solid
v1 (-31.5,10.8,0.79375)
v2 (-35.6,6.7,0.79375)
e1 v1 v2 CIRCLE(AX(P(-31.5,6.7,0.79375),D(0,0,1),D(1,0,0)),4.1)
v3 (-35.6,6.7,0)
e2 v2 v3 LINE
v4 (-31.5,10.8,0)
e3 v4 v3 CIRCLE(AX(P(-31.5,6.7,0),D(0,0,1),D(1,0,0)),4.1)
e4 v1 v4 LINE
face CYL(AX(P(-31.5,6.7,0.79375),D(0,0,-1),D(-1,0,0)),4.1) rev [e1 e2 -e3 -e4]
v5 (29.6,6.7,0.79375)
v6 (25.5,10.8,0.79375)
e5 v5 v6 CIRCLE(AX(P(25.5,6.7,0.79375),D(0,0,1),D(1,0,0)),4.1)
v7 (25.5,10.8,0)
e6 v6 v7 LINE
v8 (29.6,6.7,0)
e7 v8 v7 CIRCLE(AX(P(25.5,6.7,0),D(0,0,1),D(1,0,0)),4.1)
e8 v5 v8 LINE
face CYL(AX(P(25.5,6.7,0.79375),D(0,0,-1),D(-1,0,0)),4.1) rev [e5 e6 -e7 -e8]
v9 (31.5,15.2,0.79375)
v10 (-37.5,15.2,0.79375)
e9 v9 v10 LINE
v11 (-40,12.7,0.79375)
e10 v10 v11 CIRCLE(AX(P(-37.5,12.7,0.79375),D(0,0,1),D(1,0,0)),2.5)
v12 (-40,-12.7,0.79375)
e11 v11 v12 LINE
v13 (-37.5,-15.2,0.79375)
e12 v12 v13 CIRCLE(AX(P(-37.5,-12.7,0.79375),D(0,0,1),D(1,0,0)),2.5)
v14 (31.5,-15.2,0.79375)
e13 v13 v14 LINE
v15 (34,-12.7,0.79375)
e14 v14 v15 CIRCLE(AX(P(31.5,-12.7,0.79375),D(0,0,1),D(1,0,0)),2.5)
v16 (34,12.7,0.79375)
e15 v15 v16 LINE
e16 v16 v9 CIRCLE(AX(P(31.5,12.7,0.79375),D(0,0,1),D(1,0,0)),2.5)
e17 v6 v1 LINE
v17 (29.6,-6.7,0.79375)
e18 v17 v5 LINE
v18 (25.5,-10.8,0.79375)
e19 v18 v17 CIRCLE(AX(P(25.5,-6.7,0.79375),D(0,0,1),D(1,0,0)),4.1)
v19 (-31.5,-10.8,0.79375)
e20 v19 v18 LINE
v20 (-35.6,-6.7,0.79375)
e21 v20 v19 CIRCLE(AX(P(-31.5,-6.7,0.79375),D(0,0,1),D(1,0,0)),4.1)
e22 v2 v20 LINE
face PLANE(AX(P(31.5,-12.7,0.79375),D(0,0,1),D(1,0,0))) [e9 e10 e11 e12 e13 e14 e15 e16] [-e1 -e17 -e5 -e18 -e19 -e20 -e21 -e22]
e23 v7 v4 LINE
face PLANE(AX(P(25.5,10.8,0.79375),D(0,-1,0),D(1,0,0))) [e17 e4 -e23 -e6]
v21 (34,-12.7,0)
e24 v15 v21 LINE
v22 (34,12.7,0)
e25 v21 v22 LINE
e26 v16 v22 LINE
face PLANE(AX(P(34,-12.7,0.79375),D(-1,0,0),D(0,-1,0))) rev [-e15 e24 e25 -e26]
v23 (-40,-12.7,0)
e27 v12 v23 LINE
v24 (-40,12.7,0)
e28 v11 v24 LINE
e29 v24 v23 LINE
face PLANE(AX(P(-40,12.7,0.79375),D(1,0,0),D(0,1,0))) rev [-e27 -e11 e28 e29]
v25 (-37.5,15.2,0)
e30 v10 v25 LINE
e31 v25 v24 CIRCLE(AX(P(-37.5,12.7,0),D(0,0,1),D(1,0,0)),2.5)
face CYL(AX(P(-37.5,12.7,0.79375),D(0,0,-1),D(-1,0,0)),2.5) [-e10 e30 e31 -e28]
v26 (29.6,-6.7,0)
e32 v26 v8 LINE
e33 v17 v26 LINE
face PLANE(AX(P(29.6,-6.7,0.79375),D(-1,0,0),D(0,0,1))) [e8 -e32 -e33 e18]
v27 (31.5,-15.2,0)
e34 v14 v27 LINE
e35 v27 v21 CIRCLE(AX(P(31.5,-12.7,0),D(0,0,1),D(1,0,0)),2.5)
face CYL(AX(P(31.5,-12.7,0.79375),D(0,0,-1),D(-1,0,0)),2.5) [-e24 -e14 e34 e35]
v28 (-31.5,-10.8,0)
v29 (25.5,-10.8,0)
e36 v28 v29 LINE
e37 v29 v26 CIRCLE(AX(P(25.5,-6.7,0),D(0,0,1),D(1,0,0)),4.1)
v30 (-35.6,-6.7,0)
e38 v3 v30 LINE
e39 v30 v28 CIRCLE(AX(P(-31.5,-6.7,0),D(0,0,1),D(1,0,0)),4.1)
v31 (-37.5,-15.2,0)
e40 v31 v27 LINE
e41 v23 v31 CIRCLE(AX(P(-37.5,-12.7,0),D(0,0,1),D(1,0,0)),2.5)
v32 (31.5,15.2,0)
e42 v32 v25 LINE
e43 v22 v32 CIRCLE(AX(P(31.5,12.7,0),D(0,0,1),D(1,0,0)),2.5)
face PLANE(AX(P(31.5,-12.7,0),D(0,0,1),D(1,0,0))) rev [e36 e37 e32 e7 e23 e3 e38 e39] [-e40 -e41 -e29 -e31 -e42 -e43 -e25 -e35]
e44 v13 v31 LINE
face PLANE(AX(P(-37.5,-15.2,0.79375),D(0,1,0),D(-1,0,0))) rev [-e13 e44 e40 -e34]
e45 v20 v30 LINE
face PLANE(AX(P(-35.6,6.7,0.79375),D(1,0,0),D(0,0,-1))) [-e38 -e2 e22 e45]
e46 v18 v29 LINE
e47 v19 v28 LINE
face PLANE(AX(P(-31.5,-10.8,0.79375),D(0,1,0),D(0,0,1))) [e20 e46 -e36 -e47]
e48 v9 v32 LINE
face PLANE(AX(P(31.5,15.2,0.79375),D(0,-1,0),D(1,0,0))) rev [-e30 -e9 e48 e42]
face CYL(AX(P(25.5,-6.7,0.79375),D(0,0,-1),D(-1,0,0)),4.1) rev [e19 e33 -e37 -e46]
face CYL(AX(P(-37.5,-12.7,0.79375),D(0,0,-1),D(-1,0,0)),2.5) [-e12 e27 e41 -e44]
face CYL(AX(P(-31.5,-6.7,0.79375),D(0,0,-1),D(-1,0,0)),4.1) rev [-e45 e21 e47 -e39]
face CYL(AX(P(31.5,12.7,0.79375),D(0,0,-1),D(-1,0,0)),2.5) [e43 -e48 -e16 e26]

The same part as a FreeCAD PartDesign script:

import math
import FreeCAD as App
import Part
import Sketcher
from FreeCAD import Vector
Q = App.Units.Quantity

doc = App.newDocument("Part")
body = doc.addObject("PartDesign::Body", "Body")

# Sketch on XY plane
sketch1 = doc.addObject("Sketcher::SketchObject", "Sketch")
body.addObject(sketch1)
sketch1.AttachmentSupport = (doc.XY_Plane, [""])
sketch1.MapMode = "FlatFace"
sketch1.addGeometry(Part.LineSegment(Vector(34, -12.7, 0), Vector(34, 12.7, 0)), False)
sketch1.addGeometry(Part.ArcOfCircle(Part.Circle(Vector(31.5, 12.7, 0), Vector(0, 0, 1), 2.5), math.radians(0), math.radians(90)), False)
sketch1.addGeometry(Part.LineSegment(Vector(31.5, 15.2, 0), Vector(-37.5, 15.2, 0)), False)
sketch1.addGeometry(Part.ArcOfCircle(Part.Circle(Vector(-37.5, 12.7, 0), Vector(0, 0, 1), 2.5), math.radians(90), math.radians(180)), False)
sketch1.addGeometry(Part.LineSegment(Vector(-40, 12.7, 0), Vector(-40, -12.7, 0)), False)
sketch1.addGeometry(Part.ArcOfCircle(Part.Circle(Vector(-37.5, -12.7, 0), Vector(0, 0, 1), 2.5), math.radians(180), math.radians(270)), False)
sketch1.addGeometry(Part.LineSegment(Vector(-37.5, -15.2, 0), Vector(31.5, -15.2, 0)), False)
sketch1.addGeometry(Part.ArcOfCircle(Part.Circle(Vector(31.5, -12.7, 0), Vector(0, 0, 1), 2.5), math.radians(-90), math.radians(0)), False)
sketch1.addGeometry(Part.LineSegment(Vector(29.6, 6.7, 0), Vector(29.6, -6.7, 0)), False)
sketch1.addGeometry(Part.ArcOfCircle(Part.Circle(Vector(25.5, -6.7, 0), Vector(0, 0, 1), 4.1), math.radians(-90), math.radians(0)), False)
sketch1.addGeometry(Part.LineSegment(Vector(25.5, -10.8, 0), Vector(-31.5, -10.8, 0)), False)
sketch1.addGeometry(Part.ArcOfCircle(Part.Circle(Vector(-31.5, -6.7, 0), Vector(0, 0, 1), 4.1), math.radians(180), math.radians(270)), False)
sketch1.addGeometry(Part.LineSegment(Vector(-35.6, -6.7, 0), Vector(-35.6, 6.7, 0)), False)
sketch1.addGeometry(Part.ArcOfCircle(Part.Circle(Vector(-31.5, 6.7, 0), Vector(0, 0, 1), 4.1), math.radians(90), math.radians(180)), False)
sketch1.addGeometry(Part.LineSegment(Vector(-31.5, 10.8, 0), Vector(25.5, 10.8, 0)), False)
sketch1.addGeometry(Part.ArcOfCircle(Part.Circle(Vector(25.5, 6.7, 0), Vector(0, 0, 1), 4.1), math.radians(0), math.radians(90)), False)
sketch1.addConstraint(Sketcher.Constraint("Tangent", 0, 2, 1, 1))
sketch1.addConstraint(Sketcher.Constraint("Tangent", 1, 2, 2, 1))
sketch1.addConstraint(Sketcher.Constraint("Tangent", 2, 2, 3, 1))
sketch1.addConstraint(Sketcher.Constraint("Tangent", 3, 2, 4, 1))
sketch1.addConstraint(Sketcher.Constraint("Tangent", 4, 2, 5, 1))
sketch1.addConstraint(Sketcher.Constraint("Tangent", 5, 2, 6, 1))
sketch1.addConstraint(Sketcher.Constraint("Tangent", 6, 2, 7, 1))
sketch1.addConstraint(Sketcher.Constraint("Tangent", 7, 2, 0, 1))
sketch1.addConstraint(Sketcher.Constraint("Tangent", 8, 2, 9, 2))
sketch1.addConstraint(Sketcher.Constraint("Tangent", 9, 1, 10, 1))
sketch1.addConstraint(Sketcher.Constraint("Tangent", 10, 2, 11, 2))
sketch1.addConstraint(Sketcher.Constraint("Tangent", 11, 1, 12, 1))
sketch1.addConstraint(Sketcher.Constraint("Tangent", 12, 2, 13, 2))
sketch1.addConstraint(Sketcher.Constraint("Tangent", 13, 1, 14, 1))
sketch1.addConstraint(Sketcher.Constraint("Tangent", 14, 2, 15, 2))
sketch1.addConstraint(Sketcher.Constraint("Tangent", 15, 1, 8, 1))
sketch1.addConstraint(Sketcher.Constraint("Vertical", 0))
sketch1.addConstraint(Sketcher.Constraint("Horizontal", 2))
sketch1.addConstraint(Sketcher.Constraint("Vertical", 4))
sketch1.addConstraint(Sketcher.Constraint("Horizontal", 6))
sketch1.addConstraint(Sketcher.Constraint("Vertical", 8))
sketch1.addConstraint(Sketcher.Constraint("Horizontal", 10))
sketch1.addConstraint(Sketcher.Constraint("Vertical", 12))
sketch1.addConstraint(Sketcher.Constraint("Horizontal", 14))
sketch1.addConstraint(Sketcher.Constraint("Equal", 1, 3))
sketch1.addConstraint(Sketcher.Constraint("Equal", 3, 5))
sketch1.addConstraint(Sketcher.Constraint("Equal", 5, 7))
sketch1.addConstraint(Sketcher.Constraint("Equal", 9, 11))
sketch1.addConstraint(Sketcher.Constraint("Equal", 11, 13))
sketch1.addConstraint(Sketcher.Constraint("Equal", 13, 15))
sketch1.addConstraint(Sketcher.Constraint("Radius", 1, Q("2.5 mm")))
sketch1.addConstraint(Sketcher.Constraint("Radius", 9, Q("4.1 mm")))
sketch1.addConstraint(Sketcher.Constraint("DistanceX", 2, 2, 2, 1, Q("69 mm")))
sketch1.addConstraint(Sketcher.Constraint("DistanceX", 10, 2, 10, 1, Q("57 mm")))
sketch1.addConstraint(Sketcher.Constraint("DistanceY", 0, 1, 0, 2, Q("25.4 mm")))
sketch1.addConstraint(Sketcher.Constraint("DistanceY", 8, 2, 8, 1, Q("13.4 mm")))
sketch1.addConstraint(Sketcher.Constraint("DistanceX", -1, 1, 0, 2, Q("34 mm")))
sketch1.addConstraint(Sketcher.Constraint("DistanceX", 9, 3, 7, 3, Q("6 mm")))
sketch1.addConstraint(Sketcher.Constraint("DistanceY", 7, 3, 9, 3, Q("6 mm")))
sketch1.addConstraint(Sketcher.Constraint("DistanceY", -1, 1, 1, 3, Q("12.7 mm")))
pad1 = doc.addObject("PartDesign::Pad", "Pad")
body.addObject(pad1)
pad1.Profile = sketch1
pad1.Length = 0.79375

doc.recompute()
